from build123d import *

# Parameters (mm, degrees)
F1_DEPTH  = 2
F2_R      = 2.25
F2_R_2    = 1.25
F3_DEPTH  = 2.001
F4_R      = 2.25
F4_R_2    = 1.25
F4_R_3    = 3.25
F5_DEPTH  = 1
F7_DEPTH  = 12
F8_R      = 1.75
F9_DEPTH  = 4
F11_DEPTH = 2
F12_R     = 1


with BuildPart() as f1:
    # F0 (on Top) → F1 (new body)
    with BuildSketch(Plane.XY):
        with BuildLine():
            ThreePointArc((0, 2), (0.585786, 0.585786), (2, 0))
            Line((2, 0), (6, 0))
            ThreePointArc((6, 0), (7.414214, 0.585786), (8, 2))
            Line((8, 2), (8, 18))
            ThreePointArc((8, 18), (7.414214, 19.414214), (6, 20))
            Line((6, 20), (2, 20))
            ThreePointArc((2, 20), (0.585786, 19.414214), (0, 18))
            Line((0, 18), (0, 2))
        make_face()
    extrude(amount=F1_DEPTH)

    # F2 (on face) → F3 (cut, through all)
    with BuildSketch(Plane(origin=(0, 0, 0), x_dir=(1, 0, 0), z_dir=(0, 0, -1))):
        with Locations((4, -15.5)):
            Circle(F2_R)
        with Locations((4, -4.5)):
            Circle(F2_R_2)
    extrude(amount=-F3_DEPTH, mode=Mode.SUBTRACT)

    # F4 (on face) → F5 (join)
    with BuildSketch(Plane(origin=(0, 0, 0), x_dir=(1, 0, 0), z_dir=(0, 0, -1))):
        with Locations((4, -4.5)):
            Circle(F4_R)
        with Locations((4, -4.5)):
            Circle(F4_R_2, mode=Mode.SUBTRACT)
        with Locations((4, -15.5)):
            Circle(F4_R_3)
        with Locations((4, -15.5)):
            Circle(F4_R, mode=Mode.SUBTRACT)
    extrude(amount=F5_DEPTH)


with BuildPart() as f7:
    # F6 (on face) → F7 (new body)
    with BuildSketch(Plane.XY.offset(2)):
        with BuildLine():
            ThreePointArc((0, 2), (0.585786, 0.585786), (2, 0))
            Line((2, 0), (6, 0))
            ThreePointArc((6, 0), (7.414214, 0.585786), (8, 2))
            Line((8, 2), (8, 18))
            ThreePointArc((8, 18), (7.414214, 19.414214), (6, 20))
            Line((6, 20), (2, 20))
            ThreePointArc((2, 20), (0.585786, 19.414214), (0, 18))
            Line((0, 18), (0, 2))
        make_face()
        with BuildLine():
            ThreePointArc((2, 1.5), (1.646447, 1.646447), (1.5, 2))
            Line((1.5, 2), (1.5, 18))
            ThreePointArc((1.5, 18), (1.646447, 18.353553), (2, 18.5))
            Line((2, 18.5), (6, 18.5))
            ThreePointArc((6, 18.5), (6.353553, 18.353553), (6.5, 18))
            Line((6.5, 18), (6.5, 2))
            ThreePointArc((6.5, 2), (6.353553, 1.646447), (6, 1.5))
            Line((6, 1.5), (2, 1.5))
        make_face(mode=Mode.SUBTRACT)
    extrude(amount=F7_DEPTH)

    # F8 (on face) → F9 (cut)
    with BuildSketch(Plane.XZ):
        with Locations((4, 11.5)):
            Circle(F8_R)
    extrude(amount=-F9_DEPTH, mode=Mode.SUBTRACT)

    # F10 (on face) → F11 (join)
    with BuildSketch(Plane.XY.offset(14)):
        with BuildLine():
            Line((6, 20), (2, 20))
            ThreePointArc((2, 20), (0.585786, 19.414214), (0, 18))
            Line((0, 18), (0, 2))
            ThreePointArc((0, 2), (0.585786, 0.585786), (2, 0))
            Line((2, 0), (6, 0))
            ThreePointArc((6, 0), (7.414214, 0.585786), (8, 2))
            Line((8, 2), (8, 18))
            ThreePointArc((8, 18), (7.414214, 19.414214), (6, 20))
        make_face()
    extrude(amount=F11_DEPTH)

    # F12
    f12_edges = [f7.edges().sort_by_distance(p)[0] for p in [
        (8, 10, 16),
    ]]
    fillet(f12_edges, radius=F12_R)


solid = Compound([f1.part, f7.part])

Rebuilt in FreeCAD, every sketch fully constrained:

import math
import FreeCAD as App
import Part
import Sketcher

V = App.Vector
Q = App.Units.Quantity


def edges_at(feature, points):
    """Names of the edges that pass closest to the given points."""
    edges = feature.Shape.Edges
    near = lambda p: min(range(len(edges)), key=lambda i: edges[i].distToShape(Part.Vertex(*p))[0])
    return sorted({f"Edge{near(p) + 1}" for p in points})

doc = App.newDocument("Part")
body = doc.addObject("PartDesign::Body", "Body")

sketch1 = body.newObject("Sketcher::SketchObject", "Sketch")
sketch1.AttachmentSupport = (doc.getObject("XY_Plane"), [""])
sketch1.MapMode = "FlatFace"
sketch1.addGeometry(Part.ArcOfCircle(Part.Circle(V(2, 2, 0), V(0, 0, 1), 2), math.radians(180), math.radians(270)), False)
sketch1.addGeometry(Part.LineSegment(V(2, 0, 0), V(6, 0, 0)), False)
sketch1.addGeometry(Part.ArcOfCircle(Part.Circle(V(6, 2, 0), V(0, 0, 1), 2), math.radians(-90), math.radians(0)), False)
sketch1.addGeometry(Part.LineSegment(V(8, 2, 0), V(8, 18, 0)), False)
sketch1.addGeometry(Part.ArcOfCircle(Part.Circle(V(6, 18, 0), V(0, 0, 1), 2), math.radians(0), math.radians(90)), False)
sketch1.addGeometry(Part.LineSegment(V(6, 20, 0), V(2, 20, 0)), False)
sketch1.addGeometry(Part.ArcOfCircle(Part.Circle(V(2, 18, 0), V(0, 0, 1), 2), math.radians(90), math.radians(180)), False)
sketch1.addGeometry(Part.LineSegment(V(0, 18, 0), V(0, 2, 0)), False)
sketch1.addConstraint(Sketcher.Constraint("Tangent", 0, 2, 1, 1))
sketch1.addConstraint(Sketcher.Constraint("Tangent", 1, 2, 2, 1))
sketch1.addConstraint(Sketcher.Constraint("Tangent", 2, 2, 3, 1))
sketch1.addConstraint(Sketcher.Constraint("Tangent", 3, 2, 4, 1))
sketch1.addConstraint(Sketcher.Constraint("Tangent", 4, 2, 5, 1))
sketch1.addConstraint(Sketcher.Constraint("Tangent", 5, 2, 6, 1))
sketch1.addConstraint(Sketcher.Constraint("Tangent", 6, 2, 7, 1))
sketch1.addConstraint(Sketcher.Constraint("Tangent", 7, 2, 0, 1))
sketch1.addConstraint(Sketcher.Constraint("Horizontal", 1))
sketch1.addConstraint(Sketcher.Constraint("Vertical", 3))
sketch1.addConstraint(Sketcher.Constraint("Horizontal", 5))
sketch1.addConstraint(Sketcher.Constraint("Vertical", 7))
sketch1.addConstraint(Sketcher.Constraint("Equal", 0, 2))
sketch1.addConstraint(Sketcher.Constraint("Equal", 2, 4))
sketch1.addConstraint(Sketcher.Constraint("Equal", 4, 6))
sketch1.addConstraint(Sketcher.Constraint("PointOnObject", 0, 2, -1))
sketch1.addConstraint(Sketcher.Constraint("PointOnObject", 6, 2, -2))
sketch1.addConstraint(Sketcher.Constraint("Radius", 0, Q("1.999999 mm")))
sketch1.addConstraint(Sketcher.Constraint("DistanceX", 1, 1, 1, 2, Q("4 mm")))
sketch1.addConstraint(Sketcher.Constraint("DistanceY", 3, 1, 3, 2, Q("16 mm")))
pad1 = body.newObject("PartDesign::Pad", "Pad")
pad1.Profile = sketch1
pad1.Length = 2

sketch2 = body.newObject("Sketcher::SketchObject", "Sketch001")
sketch2.AttachmentSupport = (doc.getObject("XY_Plane"), [""])
sketch2.MapMode = "FlatFace"
sketch2.addGeometry(Part.Circle(V(4, 15.5, 0), V(0, 0, 1), 2.2), False)
sketch2.addGeometry(Part.Circle(V(4, 4.5, 0), V(0, 0, 1), 1.2), False)
sketch2.addConstraint(Sketcher.Constraint("Vertical", 0, 3, 1, 3))
sketch2.addConstraint(Sketcher.Constraint("Diameter", 0, Q("4.5 mm")))
sketch2.addConstraint(Sketcher.Constraint("Diameter", 1, Q("2.5 mm")))
sketch2.addConstraint(Sketcher.Constraint("DistanceX", -1, 1, 0, 3, Q("4 mm")))
sketch2.addConstraint(Sketcher.Constraint("DistanceY", 1, 3, 0, 3, Q("11 mm")))
sketch2.addConstraint(Sketcher.Constraint("DistanceY", -1, 1, 0, 3, Q("15.5 mm")))
pocket1 = body.newObject("PartDesign::Pocket", "Pocket")
pocket1.Profile = sketch2
pocket1.Type = "ThroughAll"
pocket1.Reversed = True

sketch3 = body.newObject("Sketcher::SketchObject", "Sketch002")
sketch3.AttachmentSupport = (doc.getObject("XY_Plane"), [""])
sketch3.MapMode = "FlatFace"
sketch3.addGeometry(Part.Circle(V(4, 4.5, 0), V(0, 0, 1), 2.2), False)
sketch3.addGeometry(Part.Circle(V(4, 4.5, 0), V(0, 0, 1), 1.2), False)
sketch3.addGeometry(Part.Circle(V(4, 15.5, 0), V(0, 0, 1), 3.2), False)
sketch3.addGeometry(Part.Circle(V(4, 15.5, 0), V(0, 0, 1), 2.2), False)
sketch3.addConstraint(Sketcher.Constraint("Coincident", 1, 3, 0, 3))
sketch3.addConstraint(Sketcher.Constraint("Coincident", 3, 3, 2, 3))
sketch3.addConstraint(Sketcher.Constraint("Equal", 0, 3))
sketch3.addConstraint(Sketcher.Constraint("Vertical", 1, 3, 2, 3))
sketch3.addConstraint(Sketcher.Constraint("Diameter", 0, Q("4.5 mm")))
sketch3.addConstraint(Sketcher.Constraint("Diameter", 1, Q("2.5 mm")))
sketch3.addConstraint(Sketcher.Constraint("Diameter", 2, Q("6.5 mm")))
sketch3.addConstraint(Sketcher.Constraint("DistanceX", -1, 1, 0, 3, Q("4 mm")))
sketch3.addConstraint(Sketcher.Constraint("DistanceY", 0, 3, 2, 3, Q("11 mm")))
sketch3.addConstraint(Sketcher.Constraint("DistanceY", -1, 1, 0, 3, Q("4.5 mm")))
pad2 = body.newObject("PartDesign::Pad", "Pad001")
pad2.Profile = sketch3
pad2.Length = 1
pad2.Reversed = True
body2 = doc.addObject("PartDesign::Body", "Body001")

sketch4 = body2.newObject("Sketcher::SketchObject", "Sketch003")
sketch4.AttachmentSupport = (doc.getObject("XY_Plane001"), [""])
sketch4.MapMode = "FlatFace"
sketch4.AttachmentOffset = App.Placement(V(0, 0, 2), App.Rotation())
sketch4.addGeometry(Part.ArcOfCircle(Part.Circle(V(2, 2, 0), V(0, 0, 1), 2), math.radians(180), math.radians(270)), False)
sketch4.addGeometry(Part.LineSegment(V(2, 0, 0), V(6, 0, 0)), False)
sketch4.addGeometry(Part.ArcOfCircle(Part.Circle(V(6, 2, 0), V(0, 0, 1), 2), math.radians(-90), math.radians(0)), False)
sketch4.addGeometry(Part.LineSegment(V(8, 2, 0), V(8, 18, 0)), False)
sketch4.addGeometry(Part.ArcOfCircle(Part.Circle(V(6, 18, 0), V(0, 0, 1), 2), math.radians(0), math.radians(90)), False)
sketch4.addGeometry(Part.LineSegment(V(6, 20, 0), V(2, 20, 0)), False)
sketch4.addGeometry(Part.ArcOfCircle(Part.Circle(V(2, 18, 0), V(0, 0, 1), 2), math.radians(90), math.radians(180)), False)
sketch4.addGeometry(Part.LineSegment(V(0, 18, 0), V(0, 2, 0)), False)
sketch4.addGeometry(Part.LineSegment(V(6, 1.5, 0), V(2, 1.5, 0)), False)
sketch4.addGeometry(Part.ArcOfCircle(Part.Circle(V(2, 2, 0), V(0, 0, 1), 0.5), math.radians(-180), math.radians(-90)), False)
sketch4.addGeometry(Part.LineSegment(V(1.5, 2, 0), V(1.5, 18, 0)), False)
sketch4.addGeometry(Part.ArcOfCircle(Part.Circle(V(2, 18, 0), V(0, 0, 1), 0.5), math.radians(90), math.radians(180)), False)
sketch4.addGeometry(Part.LineSegment(V(2, 18.5, 0), V(6, 18.5, 0)), False)
sketch4.addGeometry(Part.ArcOfCircle(Part.Circle(V(6, 18, 0), V(0, 0, 1), 0.5), math.radians(0), math.radians(90)), False)
sketch4.addGeometry(Part.LineSegment(V(6.5, 18, 0), V(6.5, 2, 0)), False)
sketch4.addGeometry(Part.ArcOfCircle(Part.Circle(V(6, 2, 0), V(0, 0, 1), 0.5), math.radians(-90), math.radians(0)), False)
sketch4.addConstraint(Sketcher.Constraint("Tangent", 0, 2, 1, 1))
sketch4.addConstraint(Sketcher.Constraint("Tangent", 1, 2, 2, 1))
sketch4.addConstraint(Sketcher.Constraint("Tangent", 2, 2, 3, 1))
sketch4.addConstraint(Sketcher.Constraint("Tangent", 3, 2, 4, 1))
sketch4.addConstraint(Sketcher.Constraint("Tangent", 4, 2, 5, 1))
sketch4.addConstraint(Sketcher.Constraint("Tangent", 5, 2, 6, 1))
sketch4.addConstraint(Sketcher.Constraint("Tangent", 6, 2, 7, 1))
sketch4.addConstraint(Sketcher.Constraint("Tangent", 7, 2, 0, 1))
sketch4.addConstraint(Sketcher.Constraint("Coincident", 8, 2, 9, 2))
sketch4.addConstraint(Sketcher.Constraint("Coincident", 9, 1, 10, 1))
sketch4.addConstraint(Sketcher.Constraint("Coincident", 10, 2, 11, 2))
sketch4.addConstraint(Sketcher.Constraint("Coincident", 11, 1, 12, 1))
sketch4.addConstraint(Sketcher.Constraint("Coincident", 12, 2, 13, 2))
sketch4.addConstraint(Sketcher.Constraint("Coincident", 13, 1, 14, 1))
sketch4.addConstraint(Sketcher.Constraint("Coincident", 14, 2, 15, 2))
sketch4.addConstraint(Sketcher.Constraint("Coincident", 15, 1, 8, 1))
sketch4.addConstraint(Sketcher.Constraint("Horizontal", 1))
sketch4.addConstraint(Sketcher.Constraint("Vertical", 3))
sketch4.addConstraint(Sketcher.Constraint("Horizontal", 5))
sketch4.addConstraint(Sketcher.Constraint("Vertical", 7))
sketch4.addConstraint(Sketcher.Constraint("Horizontal", 8))
sketch4.addConstraint(Sketcher.Constraint("Vertical", 10))
sketch4.addConstraint(Sketcher.Constraint("Horizontal", 12))
sketch4.addConstraint(Sketcher.Constraint("Vertical", 14))
sketch4.addConstraint(Sketcher.Constraint("Coincident", 9, 3, 0, 3))
sketch4.addConstraint(Sketcher.Constraint("Coincident", 11, 3, 6, 3))
sketch4.addConstraint(Sketcher.Constraint("Coincident", 13, 3, 4, 3))
sketch4.addConstraint(Sketcher.Constraint("Equal", 0, 2))
sketch4.addConstraint(Sketcher.Constraint("Equal", 2, 4))
sketch4.addConstraint(Sketcher.Constraint("Equal", 4, 6))
sketch4.addConstraint(Sketcher.Constraint("Equal", 13, 15))
sketch4.addConstraint(Sketcher.Constraint("PointOnObject", 0, 2, -1))
sketch4.addConstraint(Sketcher.Constraint("PointOnObject", 6, 2, -2))
sketch4.addConstraint(Sketcher.Constraint("Horizontal", 7, 2, 9, 1))
sketch4.addConstraint(Sketcher.Constraint("Horizontal", 6, 2, 10, 2))
sketch4.addConstraint(Sketcher.Constraint("Horizontal", 10, 2, 13, 1))
sketch4.addConstraint(Sketcher.Constraint("Horizontal", 9, 1, 14, 2))
sketch4.addConstraint(Sketcher.Constraint("Vertical", 5, 2, 8, 2))
sketch4.addConstraint(Sketcher.Constraint("Vertical", 8, 2, 11, 1))
sketch4.addConstraint(Sketcher.Constraint("Vertical", 4, 2, 12, 2))
sketch4.addConstraint(Sketcher.Constraint("Vertical", 12, 2, 15, 1))
sketch4.addConstraint(Sketcher.Constraint("Radius", 0, Q("1.999999 mm")))
sketch4.addConstraint(Sketcher.Constraint("Radius", 9, Q("0.500001 mm")))
sketch4.addConstraint(Sketcher.Constraint("DistanceX", 1, 1, 1, 2, Q("4 mm")))
sketch4.addConstraint(Sketcher.Constraint("DistanceY", 3, 1, 3, 2, Q("16 mm")))
pad3 = body2.newObject("PartDesign::Pad", "Pad002")
pad3.Profile = sketch4
pad3.Length = 12

sketch5 = body2.newObject("Sketcher::SketchObject", "Sketch004")
sketch5.AttachmentSupport = (doc.getObject("XZ_Plane001"), [""])
sketch5.MapMode = "FlatFace"
sketch5.addGeometry(Part.Circle(V(4, 11.5, 0), V(0, 0, 1), 1.8), False)
sketch5.addConstraint(Sketcher.Constraint("Diameter", 0, Q("3.5 mm")))
sketch5.addConstraint(Sketcher.Constraint("DistanceX", -1, 1, 0, 3, Q("4 mm")))
sketch5.addConstraint(Sketcher.Constraint("DistanceY", -1, 1, 0, 3, Q("11.5 mm")))
pocket2 = body2.newObject("PartDesign::Pocket", "Pocket001")
pocket2.Profile = sketch5
pocket2.Length = 4

sketch6 = body2.newObject("Sketcher::SketchObject", "Sketch005")
sketch6.AttachmentSupport = (doc.getObject("XY_Plane001"), [""])
sketch6.MapMode = "FlatFace"
sketch6.AttachmentOffset = App.Placement(V(0, 0, 14), App.Rotation())
sketch6.addGeometry(Part.LineSegment(V(6, 20, 0), V(2, 20, 0)), False)
sketch6.addGeometry(Part.ArcOfCircle(Part.Circle(V(2, 18, 0), V(0, 0, 1), 2), math.radians(90), math.radians(180)), False)
sketch6.addGeometry(Part.LineSegment(V(0, 18, 0), V(0, 2, 0)), False)
sketch6.addGeometry(Part.ArcOfCircle(Part.Circle(V(2, 2, 0), V(0, 0, 1), 2), math.radians(180), math.radians(270)), False)
sketch6.addGeometry(Part.LineSegment(V(2, 0, 0), V(6, 0, 0)), False)
sketch6.addGeometry(Part.ArcOfCircle(Part.Circle(V(6, 2, 0), V(0, 0, 1), 2), math.radians(-90), math.radians(0)), False)
sketch6.addGeometry(Part.LineSegment(V(8, 2, 0), V(8, 18, 0)), False)
sketch6.addGeometry(Part.ArcOfCircle(Part.Circle(V(6, 18, 0), V(0, 0, 1), 2), math.radians(0), math.radians(90)), False)
sketch6.addConstraint(Sketcher.Constraint("Tangent", 0, 2, 1, 1))
sketch6.addConstraint(Sketcher.Constraint("Tangent", 1, 2, 2, 1))
sketch6.addConstraint(Sketcher.Constraint("Tangent", 2, 2, 3, 1))
sketch6.addConstraint(Sketcher.Constraint("Tangent", 3, 2, 4, 1))
sketch6.addConstraint(Sketcher.Constraint("Tangent", 4, 2, 5, 1))
sketch6.addConstraint(Sketcher.Constraint("Tangent", 5, 2, 6, 1))
sketch6.addConstraint(Sketcher.Constraint("Tangent", 6, 2, 7, 1))
sketch6.addConstraint(Sketcher.Constraint("Tangent", 7, 2, 0, 1))
sketch6.addConstraint(Sketcher.Constraint("Horizontal", 0))
sketch6.addConstraint(Sketcher.Constraint("Vertical", 2))
sketch6.addConstraint(Sketcher.Constraint("Horizontal", 4))
sketch6.addConstraint(Sketcher.Constraint("Vertical", 6))
sketch6.addConstraint(Sketcher.Constraint("Equal", 1, 3))
sketch6.addConstraint(Sketcher.Constraint("Equal", 3, 5))
sketch6.addConstraint(Sketcher.Constraint("Equal", 5, 7))
sketch6.addConstraint(Sketcher.Constraint("PointOnObject", 1, 2, -2))
sketch6.addConstraint(Sketcher.Constraint("PointOnObject", 3, 2, -1))
sketch6.addConstraint(Sketcher.Constraint("Radius", 1, Q("1.999999 mm")))
sketch6.addConstraint(Sketcher.Constraint("DistanceX", 0, 2, 0, 1, Q("4 mm")))
sketch6.addConstraint(Sketcher.Constraint("DistanceY", 2, 2, 2, 1, Q("16 mm")))
pad4 = body2.newObject("PartDesign::Pad", "Pad003")
pad4.Profile = sketch6
pad4.Length = 2
doc.recompute()

fillet = body2.newObject("PartDesign::Fillet", "Fillet")
fillet.Base = (pad4, edges_at(pad4, [(8, 10, 16)]))
fillet.Radius = 1

doc.recompute()
